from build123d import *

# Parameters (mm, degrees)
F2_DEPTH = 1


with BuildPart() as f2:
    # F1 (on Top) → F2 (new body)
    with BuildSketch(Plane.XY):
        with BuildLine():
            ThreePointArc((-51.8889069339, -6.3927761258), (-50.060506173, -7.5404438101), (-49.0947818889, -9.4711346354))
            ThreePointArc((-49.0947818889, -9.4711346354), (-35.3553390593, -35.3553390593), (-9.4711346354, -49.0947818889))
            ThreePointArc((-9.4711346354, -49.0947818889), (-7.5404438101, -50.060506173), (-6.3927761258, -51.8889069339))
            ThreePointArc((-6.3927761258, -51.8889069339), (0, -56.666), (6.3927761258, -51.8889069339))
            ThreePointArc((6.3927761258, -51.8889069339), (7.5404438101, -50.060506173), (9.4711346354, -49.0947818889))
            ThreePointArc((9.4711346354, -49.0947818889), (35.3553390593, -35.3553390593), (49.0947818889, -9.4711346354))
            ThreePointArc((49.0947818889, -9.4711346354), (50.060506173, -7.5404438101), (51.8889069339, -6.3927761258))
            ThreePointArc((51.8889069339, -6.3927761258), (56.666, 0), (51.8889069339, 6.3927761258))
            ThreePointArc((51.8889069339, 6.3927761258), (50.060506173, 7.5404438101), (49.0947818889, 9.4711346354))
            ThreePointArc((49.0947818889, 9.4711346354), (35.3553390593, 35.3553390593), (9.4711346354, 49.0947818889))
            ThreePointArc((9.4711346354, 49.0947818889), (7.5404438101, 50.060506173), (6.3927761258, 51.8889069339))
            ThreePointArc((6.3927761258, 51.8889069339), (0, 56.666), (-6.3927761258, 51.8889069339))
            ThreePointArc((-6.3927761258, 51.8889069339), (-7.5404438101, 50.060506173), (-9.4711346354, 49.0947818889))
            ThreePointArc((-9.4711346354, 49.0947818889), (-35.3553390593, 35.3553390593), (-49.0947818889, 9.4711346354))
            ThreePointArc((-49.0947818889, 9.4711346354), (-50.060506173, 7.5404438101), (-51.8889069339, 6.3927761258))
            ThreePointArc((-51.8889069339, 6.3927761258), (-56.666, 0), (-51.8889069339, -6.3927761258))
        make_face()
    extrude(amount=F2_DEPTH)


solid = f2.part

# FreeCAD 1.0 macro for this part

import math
import FreeCAD as App
import Part
import Sketcher

doc = App.newDocument("Part")
body = doc.addObject("PartDesign::Body", "Body")

sketch1 = doc.addObject("Sketcher::SketchObject", "Sketch")
body.addObject(sketch1)
sketch1.AttachmentSupport = (doc.XY_Plane, [""])
sketch1.MapMode = "FlatFace"
sketch1.addGeometry([
    Part.ArcOfCircle(Part.Circle(App.Vector(-53, -10.2, 0), App.Vector(0, 0, 1), 4), math.radians(11), math.radians(74)),
    Part.ArcOfCircle(Part.Circle(App.Vector(0, 0, 0), App.Vector(0, 0, 1), 50), math.radians(-169), math.radians(-101)),
    Part.ArcOfCircle(Part.Circle(App.Vector(-10.2, -53, 0), App.Vector(0, 0, 1), 4), math.radians(16), math.radians(79)),
    Part.ArcOfCircle(Part.Circle(App.Vector(0, -50, 0), App.Vector(0, 0, 1), 6.7), math.radians(-164), math.radians(-16)),
    Part.ArcOfCircle(Part.Circle(App.Vector(10.2, -53, 0), App.Vector(0, 0, 1), 4), math.radians(101), math.radians(164)),
    Part.ArcOfCircle(Part.Circle(App.Vector(0, 0, 0), App.Vector(0, 0, 1), 50), math.radians(-79), math.radians(-11)),
    Part.ArcOfCircle(Part.Circle(App.Vector(53, -10.2, 0), App.Vector(0, 0, 1), 4), math.radians(106), math.radians(169)),
    Part.ArcOfCircle(Part.Circle(App.Vector(50, 0, 0), App.Vector(0, 0, 1), 6.7), math.radians(-74), math.radians(74)),
    Part.ArcOfCircle(Part.Circle(App.Vector(53, 10.2, 0), App.Vector(0, 0, 1), 4), math.radians(-169), math.radians(-106)),
    Part.ArcOfCircle(Part.Circle(App.Vector(0, 0, 0), App.Vector(0, 0, 1), 50), math.radians(11), math.radians(79)),
    Part.ArcOfCircle(Part.Circle(App.Vector(10.2, 53, 0), App.Vector(0, 0, 1), 4), math.radians(-164), math.radians(-101)),
    Part.ArcOfCircle(Part.Circle(App.Vector(0, 50, 0), App.Vector(0, 0, 1), 6.7), math.radians(16), math.radians(164)),
    Part.ArcOfCircle(Part.Circle(App.Vector(-10.2, 53, 0), App.Vector(0, 0, 1), 4), math.radians(-79), math.radians(-16)),
    Part.ArcOfCircle(Part.Circle(App.Vector(0, 0, 0), App.Vector(0, 0, 1), 50), math.radians(101), math.radians(169)),
    Part.ArcOfCircle(Part.Circle(App.Vector(-53, 10.2, 0), App.Vector(0, 0, 1), 4), math.radians(-74), math.radians(-11)),
    Part.ArcOfCircle(Part.Circle(App.Vector(-50, 0, 0), App.Vector(0, 0, 1), 6.7), math.radians(106), math.radians(254)),
], False)
sketch1.addConstraint([
    Sketcher.Constraint("Tangent", 0, 1, 1, 1),
    Sketcher.Constraint("Tangent", 1, 2, 2, 2),
    Sketcher.Constraint("Tangent", 2, 1, 3, 1),
    Sketcher.Constraint("Tangent", 3, 2, 4, 2),
    Sketcher.Constraint("Tangent", 4, 1, 5, 1),
    Sketcher.Constraint("Tangent", 5, 2, 6, 2),
    Sketcher.Constraint("Tangent", 6, 1, 7, 1),
    Sketcher.Constraint("Tangent", 7, 2, 8, 2),
    Sketcher.Constraint("Tangent", 8, 1, 9, 1),
    Sketcher.Constraint("Tangent", 9, 2, 10, 2),
    Sketcher.Constraint("Tangent", 10, 1, 11, 1),
    Sketcher.Constraint("Tangent", 11, 2, 12, 2),
    Sketcher.Constraint("Tangent", 12, 1, 13, 1),
    Sketcher.Constraint("Tangent", 13, 2, 14, 2),
    Sketcher.Constraint("Tangent", 14, 1, 15, 1),
    Sketcher.Constraint("Tangent", 15, 2, 0, 2),
    Sketcher.Constraint("Coincident", 1, 3, -1, 1),
    Sketcher.Constraint("Coincident", 5, 3, -1, 1),
    Sketcher.Constraint("Coincident", 9, 3, -1, 1),
    Sketcher.Constraint("Coincident", 13, 3, -1, 1),
    Sketcher.Constraint("Equal", 0, 2),
    Sketcher.Constraint("Equal", 2, 4),
    Sketcher.Constraint("Equal", 1, 5),
    Sketcher.Constraint("Equal", 4, 6),
    Sketcher.Constraint("Equal", 3, 7),
    Sketcher.Constraint("Equal", 6, 8),
    Sketcher.Constraint("Equal", 5, 9),
    Sketcher.Constraint("Equal", 8, 10),
    Sketcher.Constraint("Equal", 7, 11),
    Sketcher.Constraint("Equal", 10, 12),
    Sketcher.Constraint("Equal", 9, 13),
    Sketcher.Constraint("Equal", 12, 14),
    Sketcher.Constraint("Equal", 11, 15),
    Sketcher.Constraint("Symmetric", 3, 3, 11, 3, -1, 1),
    Sketcher.Constraint("Symmetric", 7, 3, 15, 3, -1, 1),
    Sketcher.Constraint("PointOnObject", 3, 3, -2),
    Sketcher.Constraint("PointOnObject", 7, 3, -1),
    Sketcher.Constraint("Radius", 0, 4.0),
    Sketcher.Constraint("Radius", 1, 50.0),
    Sketcher.Constraint("DistanceY", 3, 3, -1, 1, 50.0),
    Sketcher.Constraint("DistanceX", -1, 1, 7, 3, 50.0),
    Sketcher.Constraint("Radius", 3, 6.666),
])
pad1 = doc.addObject("PartDesign::Pad", "Pad")
body.addObject(pad1)
pad1.Profile = sketch1
pad1.Length = 1

doc.recompute()
